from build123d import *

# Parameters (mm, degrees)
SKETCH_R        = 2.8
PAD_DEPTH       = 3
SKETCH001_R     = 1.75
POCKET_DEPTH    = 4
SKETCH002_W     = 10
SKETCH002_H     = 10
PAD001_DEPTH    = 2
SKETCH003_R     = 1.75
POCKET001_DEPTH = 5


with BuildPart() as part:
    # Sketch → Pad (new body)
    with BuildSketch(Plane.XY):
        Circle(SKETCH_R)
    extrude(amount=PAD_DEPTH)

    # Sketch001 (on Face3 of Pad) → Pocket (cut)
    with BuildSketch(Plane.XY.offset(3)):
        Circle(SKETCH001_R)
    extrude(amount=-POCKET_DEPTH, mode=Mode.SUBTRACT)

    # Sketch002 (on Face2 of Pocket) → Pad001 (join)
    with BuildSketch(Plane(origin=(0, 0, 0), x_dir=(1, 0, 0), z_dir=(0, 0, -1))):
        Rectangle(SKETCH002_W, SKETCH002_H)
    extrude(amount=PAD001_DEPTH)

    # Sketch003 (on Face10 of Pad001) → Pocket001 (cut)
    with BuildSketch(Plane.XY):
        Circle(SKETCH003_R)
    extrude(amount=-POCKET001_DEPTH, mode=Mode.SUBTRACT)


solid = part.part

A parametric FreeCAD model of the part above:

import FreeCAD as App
import Part
import Sketcher
Q = App.Units.Quantity

doc = App.newDocument("Part")
body = doc.addObject("PartDesign::Body", "Body")

sketch1 = body.newObject("Sketcher::SketchObject", "Sketch")
sketch1.AttachmentSupport = (doc.getObject("XY_Plane"), [""])
sketch1.MapMode = "FlatFace"
sketch1.addGeometry(Part.Circle(App.Vector(0, 0, 0), App.Vector(0, 0, 1), 2.8), False)
sketch1.addConstraint(Sketcher.Constraint("Coincident", 0, 3, -1, 1))
sketch1.addConstraint(Sketcher.Constraint("Diameter", 0, Q("5.6 mm")))
pad1 = body.newObject("PartDesign::Pad", "Pad")
pad1.Profile = sketch1
pad1.Length = 3

sketch2 = body.newObject("Sketcher::SketchObject", "Sketch001")
sketch2.AttachmentSupport = (doc.getObject("XY_Plane"), [""])
sketch2.MapMode = "FlatFace"
sketch2.AttachmentOffset = App.Placement(App.Vector(0, 0, 3), App.Rotation())
sketch2.addGeometry(Part.Circle(App.Vector(0, 0, 0), App.Vector(0, 0, 1), 1.8), False)
sketch2.addConstraint(Sketcher.Constraint("Coincident", 0, 3, -1, 1))
sketch2.addConstraint(Sketcher.Constraint("Diameter", 0, Q("3.5 mm")))
pocket1 = body.newObject("PartDesign::Pocket", "Pocket")
pocket1.Profile = sketch2
pocket1.Length = 4

sketch3 = body.newObject("Sketcher::SketchObject", "Sketch002")
sketch3.AttachmentSupport = (doc.getObject("XY_Plane"), [""])
sketch3.MapMode = "FlatFace"
sketch3.addGeometry(Part.LineSegment(App.Vector(-5, -5, 0), App.Vector(-5, 5, 0)), False)
sketch3.addGeometry(Part.LineSegment(App.Vector(-5, 5, 0), App.Vector(5, 5, 0)), False)
sketch3.addGeometry(Part.LineSegment(App.Vector(5, 5, 0), App.Vector(5, -5, 0)), False)
sketch3.addGeometry(Part.LineSegment(App.Vector(5, -5, 0), App.Vector(-5, -5, 0)), False)
sketch3.addConstraint(Sketcher.Constraint("Coincident", 0, 2, 1, 1))
sketch3.addConstraint(Sketcher.Constraint("Coincident", 1, 2, 2, 1))
sketch3.addConstraint(Sketcher.Constraint("Coincident", 2, 2, 3, 1))
sketch3.addConstraint(Sketcher.Constraint("Coincident", 3, 2, 0, 1))
sketch3.addConstraint(Sketcher.Constraint("Vertical", 0))
sketch3.addConstraint(Sketcher.Constraint("Horizontal", 1))
sketch3.addConstraint(Sketcher.Constraint("Vertical", 2))
sketch3.addConstraint(Sketcher.Constraint("Horizontal", 3))
sketch3.addConstraint(Sketcher.Constraint("Symmetric", 0, 2, 2, 2, -1, 1))
sketch3.addConstraint(Sketcher.Constraint("Equal", 3, 0))
sketch3.addConstraint(Sketcher.Constraint("DistanceX", 1, 1, 1, 2, Q("10 mm")))
pad2 = body.newObject("PartDesign::Pad", "Pad001")
pad2.Profile = sketch3
pad2.Length = 2
pad2.Reversed = True

sketch4 = body.newObject("Sketcher::SketchObject", "Sketch003")
sketch4.AttachmentSupport = (doc.getObject("XY_Plane"), [""])
sketch4.MapMode = "FlatFace"
sketch4.addGeometry(Part.Circle(App.Vector(0, 0, 0), App.Vector(0, 0, 1), 1.8), False)
sketch4.addConstraint(Sketcher.Constraint("Coincident", 0, 3, -1, 1))
sketch4.addConstraint(Sketcher.Constraint("Diameter", 0, Q("3.5 mm")))
pocket2 = body.newObject("PartDesign::Pocket", "Pocket001")
pocket2.Profile = sketch4
pocket2.Length = 5

doc.recompute()
